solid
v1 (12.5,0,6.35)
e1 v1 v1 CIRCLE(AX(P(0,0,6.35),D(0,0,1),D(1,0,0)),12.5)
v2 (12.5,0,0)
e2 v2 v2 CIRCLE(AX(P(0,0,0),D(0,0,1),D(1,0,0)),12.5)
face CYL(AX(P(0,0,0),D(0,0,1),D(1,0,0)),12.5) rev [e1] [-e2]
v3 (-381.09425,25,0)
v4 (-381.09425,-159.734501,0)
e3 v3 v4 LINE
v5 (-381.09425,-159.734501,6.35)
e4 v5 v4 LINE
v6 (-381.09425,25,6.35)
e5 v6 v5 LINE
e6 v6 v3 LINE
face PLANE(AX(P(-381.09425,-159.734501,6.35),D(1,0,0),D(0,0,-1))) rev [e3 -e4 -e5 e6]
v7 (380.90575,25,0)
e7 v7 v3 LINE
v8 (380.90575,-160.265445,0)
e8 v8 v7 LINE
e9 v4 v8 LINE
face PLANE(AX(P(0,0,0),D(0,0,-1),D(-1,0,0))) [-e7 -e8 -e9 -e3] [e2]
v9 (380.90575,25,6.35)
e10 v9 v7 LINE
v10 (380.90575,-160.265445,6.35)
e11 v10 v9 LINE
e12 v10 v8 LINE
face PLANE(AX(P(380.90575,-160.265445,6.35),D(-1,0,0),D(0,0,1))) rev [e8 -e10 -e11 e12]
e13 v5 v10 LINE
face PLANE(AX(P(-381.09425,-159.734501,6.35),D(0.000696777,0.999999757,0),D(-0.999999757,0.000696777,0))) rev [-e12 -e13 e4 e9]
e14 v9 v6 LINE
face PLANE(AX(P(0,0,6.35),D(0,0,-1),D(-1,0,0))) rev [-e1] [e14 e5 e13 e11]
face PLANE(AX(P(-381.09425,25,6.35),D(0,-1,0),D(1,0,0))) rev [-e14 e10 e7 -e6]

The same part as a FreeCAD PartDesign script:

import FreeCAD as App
import Part
import Sketcher

V = App.Vector
Q = App.Units.Quantity


def add_polygon(sketch, points):
    """Adds a closed chain of lines whose ends are joined by coincident constraints."""
    first, n = sketch.GeometryCount, len(points)
    for a, b in zip(points, points[1:] + points[:1]):
        sketch.addGeometry(Part.LineSegment(App.Vector(*a, 0), App.Vector(*b, 0)), False)
    for i in range(n):
        sketch.addConstraint(Sketcher.Constraint("Coincident", first + i, 2, first + (i + 1) % n, 1))

doc = App.newDocument("Part")
body = doc.addObject("PartDesign::Body", "Body")

# Sketch on XY plane
sketch1 = body.newObject("Sketcher::SketchObject", "Sketch")
sketch1.AttachmentSupport = (doc.getObject("XY_Plane"), [""])
sketch1.MapMode = "FlatFace"
add_polygon(sketch1, [(-381.09425, 25), (-381.09425, -159.734501), (380.90575, -160.265445), (380.90575, 25)])  # lines 0-3
sketch1.addConstraint([
    Sketcher.Constraint("Vertical", 0),
    Sketcher.Constraint("Vertical", 2),
    Sketcher.Constraint("Horizontal", 3),
    Sketcher.Constraint("DistanceX", 3, 2, 3, 1, Q("30 in")),
    Sketcher.Constraint("DistanceY", 0, 2, 0, 1, Q("184.734501 mm")),
    Sketcher.Constraint("DistanceY", 0, 2, -1, 1, Q("159.734501 mm")),
    Sketcher.Constraint("DistanceY", 2, 1, 2, 2, Q("185.265445 mm")),
    Sketcher.Constraint("DistanceX", 0, 2, -1, 1, Q("381.09425 mm")),
])
pad1 = body.newObject("PartDesign::Pad", "Pad")
pad1.Profile = sketch1
pad1.Length = Q("0.25 in")

# Sketch on XY plane
sketch2 = body.newObject("Sketcher::SketchObject", "Sketch001")
sketch2.AttachmentSupport = (doc.getObject("XY_Plane"), [""])
sketch2.MapMode = "FlatFace"
sketch2.AttachmentOffset = App.Placement(V(0, 0, 0.25 * 25.4), App.Rotation())
sketch2.addGeometry(Part.Circle(V(0, 0, 0), V(0, 0, 1), 12.5), False)
sketch2.addConstraint([
    Sketcher.Constraint("Coincident", 0, 3, -1, 1),
    Sketcher.Constraint("Diameter", 0, Q("25 mm")),
])
pocket1 = body.newObject("PartDesign::Pocket", "Pocket")
pocket1.Profile = sketch2
pocket1.Type = "ThroughAll"

doc.recompute()
